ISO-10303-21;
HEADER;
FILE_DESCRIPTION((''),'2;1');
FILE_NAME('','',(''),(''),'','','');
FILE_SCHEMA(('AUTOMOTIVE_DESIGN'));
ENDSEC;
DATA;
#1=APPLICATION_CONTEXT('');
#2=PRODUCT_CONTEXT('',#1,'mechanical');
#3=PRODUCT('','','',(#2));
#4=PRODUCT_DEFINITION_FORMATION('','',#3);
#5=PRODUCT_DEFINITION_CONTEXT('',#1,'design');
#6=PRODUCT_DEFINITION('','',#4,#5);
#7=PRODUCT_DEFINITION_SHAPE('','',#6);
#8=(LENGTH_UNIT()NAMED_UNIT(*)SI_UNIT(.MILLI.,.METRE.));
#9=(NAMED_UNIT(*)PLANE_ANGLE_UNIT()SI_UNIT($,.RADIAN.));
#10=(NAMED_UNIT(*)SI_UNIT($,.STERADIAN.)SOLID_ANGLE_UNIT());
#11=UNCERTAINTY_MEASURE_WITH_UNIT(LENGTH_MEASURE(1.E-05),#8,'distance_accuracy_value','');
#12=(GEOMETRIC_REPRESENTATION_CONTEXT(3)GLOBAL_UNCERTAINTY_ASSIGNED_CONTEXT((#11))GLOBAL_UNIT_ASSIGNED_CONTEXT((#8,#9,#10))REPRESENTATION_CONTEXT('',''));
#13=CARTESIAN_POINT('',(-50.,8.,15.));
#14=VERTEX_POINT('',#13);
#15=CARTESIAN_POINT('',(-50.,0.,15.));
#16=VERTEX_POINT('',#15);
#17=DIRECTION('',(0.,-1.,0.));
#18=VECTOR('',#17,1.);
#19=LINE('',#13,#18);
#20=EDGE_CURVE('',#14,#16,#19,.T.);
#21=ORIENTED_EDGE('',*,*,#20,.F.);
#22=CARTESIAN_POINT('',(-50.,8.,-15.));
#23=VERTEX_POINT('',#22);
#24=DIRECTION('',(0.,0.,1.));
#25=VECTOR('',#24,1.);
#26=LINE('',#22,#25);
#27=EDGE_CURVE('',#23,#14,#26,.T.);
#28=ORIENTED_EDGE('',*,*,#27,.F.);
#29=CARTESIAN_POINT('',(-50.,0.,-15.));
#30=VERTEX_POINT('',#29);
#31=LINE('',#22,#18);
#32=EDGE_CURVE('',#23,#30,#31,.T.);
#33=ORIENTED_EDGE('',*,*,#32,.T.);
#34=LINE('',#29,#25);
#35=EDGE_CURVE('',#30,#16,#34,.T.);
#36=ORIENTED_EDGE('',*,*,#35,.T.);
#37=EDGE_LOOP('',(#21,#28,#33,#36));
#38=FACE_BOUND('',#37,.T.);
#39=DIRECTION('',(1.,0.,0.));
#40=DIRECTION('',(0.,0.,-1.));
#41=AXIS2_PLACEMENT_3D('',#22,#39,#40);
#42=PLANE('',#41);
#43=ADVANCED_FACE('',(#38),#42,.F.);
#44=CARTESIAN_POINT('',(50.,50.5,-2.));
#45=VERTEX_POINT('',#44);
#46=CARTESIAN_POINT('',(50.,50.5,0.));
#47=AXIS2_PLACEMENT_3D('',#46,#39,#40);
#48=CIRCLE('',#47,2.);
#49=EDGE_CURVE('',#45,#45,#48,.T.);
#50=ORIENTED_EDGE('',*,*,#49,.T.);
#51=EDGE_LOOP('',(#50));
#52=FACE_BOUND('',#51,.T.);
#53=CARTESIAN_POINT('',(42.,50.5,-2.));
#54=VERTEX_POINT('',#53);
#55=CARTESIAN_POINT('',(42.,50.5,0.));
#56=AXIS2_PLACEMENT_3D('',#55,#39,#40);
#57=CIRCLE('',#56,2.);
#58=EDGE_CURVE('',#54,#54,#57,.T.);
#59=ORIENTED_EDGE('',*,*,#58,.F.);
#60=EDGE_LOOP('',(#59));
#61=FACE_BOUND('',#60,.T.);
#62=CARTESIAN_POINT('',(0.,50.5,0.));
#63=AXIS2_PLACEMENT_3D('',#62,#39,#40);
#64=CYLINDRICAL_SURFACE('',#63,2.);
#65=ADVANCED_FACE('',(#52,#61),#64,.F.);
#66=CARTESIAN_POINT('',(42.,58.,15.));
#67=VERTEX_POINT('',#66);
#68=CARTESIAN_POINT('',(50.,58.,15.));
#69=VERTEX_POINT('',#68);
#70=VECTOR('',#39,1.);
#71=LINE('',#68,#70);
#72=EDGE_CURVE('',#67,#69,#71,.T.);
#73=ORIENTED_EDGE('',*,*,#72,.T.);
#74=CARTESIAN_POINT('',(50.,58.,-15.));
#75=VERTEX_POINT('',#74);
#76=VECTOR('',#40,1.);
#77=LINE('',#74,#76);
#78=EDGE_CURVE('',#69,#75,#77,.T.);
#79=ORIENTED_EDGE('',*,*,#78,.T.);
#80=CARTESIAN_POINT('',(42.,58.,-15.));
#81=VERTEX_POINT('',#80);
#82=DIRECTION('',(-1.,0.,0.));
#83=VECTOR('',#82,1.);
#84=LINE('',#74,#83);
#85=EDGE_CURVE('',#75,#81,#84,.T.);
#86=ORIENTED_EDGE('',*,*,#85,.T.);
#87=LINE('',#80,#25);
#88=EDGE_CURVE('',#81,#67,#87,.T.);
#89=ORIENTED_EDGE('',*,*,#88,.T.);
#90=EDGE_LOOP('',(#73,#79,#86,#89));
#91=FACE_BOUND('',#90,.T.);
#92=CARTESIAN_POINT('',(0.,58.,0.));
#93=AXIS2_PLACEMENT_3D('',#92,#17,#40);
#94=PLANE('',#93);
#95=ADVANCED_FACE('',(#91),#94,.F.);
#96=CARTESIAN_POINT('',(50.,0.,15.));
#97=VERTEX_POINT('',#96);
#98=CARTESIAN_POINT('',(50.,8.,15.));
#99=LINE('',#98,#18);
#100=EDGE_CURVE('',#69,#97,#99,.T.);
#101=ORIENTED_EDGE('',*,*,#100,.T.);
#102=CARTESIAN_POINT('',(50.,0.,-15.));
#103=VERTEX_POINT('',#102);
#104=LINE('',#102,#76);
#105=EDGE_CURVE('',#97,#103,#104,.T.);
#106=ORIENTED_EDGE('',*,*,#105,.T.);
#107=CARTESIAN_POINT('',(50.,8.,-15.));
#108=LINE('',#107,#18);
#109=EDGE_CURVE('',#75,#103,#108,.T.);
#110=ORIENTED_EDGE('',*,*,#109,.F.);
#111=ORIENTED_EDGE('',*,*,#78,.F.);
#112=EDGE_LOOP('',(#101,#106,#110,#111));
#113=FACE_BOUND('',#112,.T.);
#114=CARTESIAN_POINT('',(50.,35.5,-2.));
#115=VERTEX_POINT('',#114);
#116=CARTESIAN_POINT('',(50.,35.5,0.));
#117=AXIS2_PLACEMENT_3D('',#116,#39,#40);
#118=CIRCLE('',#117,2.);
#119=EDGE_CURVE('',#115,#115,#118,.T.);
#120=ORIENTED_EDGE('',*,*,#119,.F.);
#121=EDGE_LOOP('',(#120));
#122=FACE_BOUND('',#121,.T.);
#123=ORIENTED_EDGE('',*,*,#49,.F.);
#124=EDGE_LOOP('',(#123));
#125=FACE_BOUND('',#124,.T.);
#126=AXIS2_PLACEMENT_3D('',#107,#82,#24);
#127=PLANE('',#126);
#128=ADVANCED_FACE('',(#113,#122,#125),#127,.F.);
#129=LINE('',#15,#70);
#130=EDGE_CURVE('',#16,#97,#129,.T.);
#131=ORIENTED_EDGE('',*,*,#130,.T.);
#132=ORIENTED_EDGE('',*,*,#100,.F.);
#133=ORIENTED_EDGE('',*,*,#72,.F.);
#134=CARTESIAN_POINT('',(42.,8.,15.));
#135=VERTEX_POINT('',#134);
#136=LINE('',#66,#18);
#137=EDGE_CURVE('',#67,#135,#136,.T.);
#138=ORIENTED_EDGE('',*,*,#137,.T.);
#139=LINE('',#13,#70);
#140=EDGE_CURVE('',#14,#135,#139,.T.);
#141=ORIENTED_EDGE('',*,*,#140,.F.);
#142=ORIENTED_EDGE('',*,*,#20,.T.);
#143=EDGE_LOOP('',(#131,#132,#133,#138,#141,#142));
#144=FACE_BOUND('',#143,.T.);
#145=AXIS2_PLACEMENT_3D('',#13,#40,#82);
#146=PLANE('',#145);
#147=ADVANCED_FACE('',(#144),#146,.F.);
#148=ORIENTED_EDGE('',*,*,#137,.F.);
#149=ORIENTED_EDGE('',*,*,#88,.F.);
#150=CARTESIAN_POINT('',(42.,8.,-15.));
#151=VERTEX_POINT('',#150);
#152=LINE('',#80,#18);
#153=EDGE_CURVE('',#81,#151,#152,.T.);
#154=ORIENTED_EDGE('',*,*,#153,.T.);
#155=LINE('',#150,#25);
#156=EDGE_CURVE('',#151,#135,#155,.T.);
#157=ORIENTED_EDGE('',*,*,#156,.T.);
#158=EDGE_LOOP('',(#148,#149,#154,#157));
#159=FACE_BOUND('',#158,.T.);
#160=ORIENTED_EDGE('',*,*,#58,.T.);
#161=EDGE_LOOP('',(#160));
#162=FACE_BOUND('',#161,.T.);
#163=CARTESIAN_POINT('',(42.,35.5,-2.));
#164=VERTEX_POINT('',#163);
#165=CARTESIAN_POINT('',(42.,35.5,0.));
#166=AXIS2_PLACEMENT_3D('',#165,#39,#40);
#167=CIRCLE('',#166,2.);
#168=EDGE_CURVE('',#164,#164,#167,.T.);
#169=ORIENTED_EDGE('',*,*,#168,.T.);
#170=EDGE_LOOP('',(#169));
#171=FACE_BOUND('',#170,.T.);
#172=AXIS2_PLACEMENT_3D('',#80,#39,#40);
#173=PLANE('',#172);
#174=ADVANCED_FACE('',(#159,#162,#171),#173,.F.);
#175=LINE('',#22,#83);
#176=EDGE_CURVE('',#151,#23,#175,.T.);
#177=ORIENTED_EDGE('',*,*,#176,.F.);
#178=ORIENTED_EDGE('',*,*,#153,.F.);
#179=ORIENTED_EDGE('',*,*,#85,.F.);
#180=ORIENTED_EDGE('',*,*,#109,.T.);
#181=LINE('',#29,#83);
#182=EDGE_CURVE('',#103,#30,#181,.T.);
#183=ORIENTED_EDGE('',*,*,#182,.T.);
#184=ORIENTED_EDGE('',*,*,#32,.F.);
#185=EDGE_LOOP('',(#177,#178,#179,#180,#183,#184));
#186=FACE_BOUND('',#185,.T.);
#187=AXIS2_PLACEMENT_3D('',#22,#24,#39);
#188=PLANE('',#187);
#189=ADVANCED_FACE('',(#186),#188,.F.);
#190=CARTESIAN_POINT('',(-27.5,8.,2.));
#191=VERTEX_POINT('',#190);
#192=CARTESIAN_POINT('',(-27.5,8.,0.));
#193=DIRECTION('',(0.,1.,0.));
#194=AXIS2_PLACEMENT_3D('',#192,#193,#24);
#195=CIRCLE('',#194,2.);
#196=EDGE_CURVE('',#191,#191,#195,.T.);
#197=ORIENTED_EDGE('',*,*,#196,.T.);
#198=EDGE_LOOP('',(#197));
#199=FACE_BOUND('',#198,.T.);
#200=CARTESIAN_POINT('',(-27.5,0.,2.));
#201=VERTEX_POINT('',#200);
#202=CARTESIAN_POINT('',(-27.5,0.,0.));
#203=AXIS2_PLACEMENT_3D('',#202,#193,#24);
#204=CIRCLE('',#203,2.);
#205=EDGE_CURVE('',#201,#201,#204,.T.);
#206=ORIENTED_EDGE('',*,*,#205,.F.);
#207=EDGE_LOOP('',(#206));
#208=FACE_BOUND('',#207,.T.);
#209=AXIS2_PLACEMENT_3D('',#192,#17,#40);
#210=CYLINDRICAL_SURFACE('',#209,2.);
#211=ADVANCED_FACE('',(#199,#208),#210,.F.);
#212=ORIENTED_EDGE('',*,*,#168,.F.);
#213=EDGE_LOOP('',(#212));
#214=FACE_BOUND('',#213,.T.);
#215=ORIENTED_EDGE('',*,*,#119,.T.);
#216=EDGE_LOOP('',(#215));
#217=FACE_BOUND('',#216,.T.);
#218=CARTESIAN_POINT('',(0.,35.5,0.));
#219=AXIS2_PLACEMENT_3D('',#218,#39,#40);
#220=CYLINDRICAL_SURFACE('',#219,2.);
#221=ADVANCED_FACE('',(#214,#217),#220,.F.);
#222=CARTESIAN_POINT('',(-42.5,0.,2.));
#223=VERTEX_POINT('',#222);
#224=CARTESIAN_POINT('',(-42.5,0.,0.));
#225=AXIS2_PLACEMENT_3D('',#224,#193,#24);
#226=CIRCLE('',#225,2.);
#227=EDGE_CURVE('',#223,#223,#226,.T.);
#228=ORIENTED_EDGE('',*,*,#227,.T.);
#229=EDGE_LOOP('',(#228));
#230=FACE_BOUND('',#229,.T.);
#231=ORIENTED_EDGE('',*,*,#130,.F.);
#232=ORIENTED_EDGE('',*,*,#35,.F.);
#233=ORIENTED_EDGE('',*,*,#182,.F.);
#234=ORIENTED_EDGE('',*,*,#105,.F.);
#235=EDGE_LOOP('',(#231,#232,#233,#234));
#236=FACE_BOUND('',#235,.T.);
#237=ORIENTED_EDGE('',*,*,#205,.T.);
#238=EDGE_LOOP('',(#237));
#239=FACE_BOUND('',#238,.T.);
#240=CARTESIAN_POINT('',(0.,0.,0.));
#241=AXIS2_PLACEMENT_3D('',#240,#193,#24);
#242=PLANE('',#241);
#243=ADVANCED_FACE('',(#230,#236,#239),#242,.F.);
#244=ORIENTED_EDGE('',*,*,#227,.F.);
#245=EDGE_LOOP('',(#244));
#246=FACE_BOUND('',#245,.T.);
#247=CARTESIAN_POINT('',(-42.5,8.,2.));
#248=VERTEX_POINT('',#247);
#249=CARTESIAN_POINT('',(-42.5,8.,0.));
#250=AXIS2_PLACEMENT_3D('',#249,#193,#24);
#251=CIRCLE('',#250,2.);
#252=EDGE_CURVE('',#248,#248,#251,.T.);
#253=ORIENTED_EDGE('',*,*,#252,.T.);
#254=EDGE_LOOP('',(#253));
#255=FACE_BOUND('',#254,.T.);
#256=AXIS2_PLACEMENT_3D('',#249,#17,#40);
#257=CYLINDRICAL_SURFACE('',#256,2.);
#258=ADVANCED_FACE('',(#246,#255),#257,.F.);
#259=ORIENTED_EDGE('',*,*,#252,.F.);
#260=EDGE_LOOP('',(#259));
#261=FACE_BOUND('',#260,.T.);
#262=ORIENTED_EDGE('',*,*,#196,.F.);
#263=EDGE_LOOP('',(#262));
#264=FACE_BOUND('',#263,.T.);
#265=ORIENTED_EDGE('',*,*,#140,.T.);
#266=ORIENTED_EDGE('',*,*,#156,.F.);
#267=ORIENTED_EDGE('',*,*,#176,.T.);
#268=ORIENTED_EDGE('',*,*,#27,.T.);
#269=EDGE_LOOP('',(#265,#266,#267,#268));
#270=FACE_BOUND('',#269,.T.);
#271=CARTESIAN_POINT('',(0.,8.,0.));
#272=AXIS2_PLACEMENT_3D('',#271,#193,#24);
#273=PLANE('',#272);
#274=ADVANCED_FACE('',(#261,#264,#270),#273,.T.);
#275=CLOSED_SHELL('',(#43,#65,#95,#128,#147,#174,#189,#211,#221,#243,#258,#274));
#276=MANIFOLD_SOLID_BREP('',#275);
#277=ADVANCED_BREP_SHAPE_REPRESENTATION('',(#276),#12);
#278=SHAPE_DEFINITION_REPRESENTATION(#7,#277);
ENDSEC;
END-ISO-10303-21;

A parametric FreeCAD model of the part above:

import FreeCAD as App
import Part
import Sketcher

V = App.Vector

doc = App.newDocument("Part")
body = doc.addObject("PartDesign::Body", "Body")

# Sketch on XZ plane
sketch1 = doc.addObject("Sketcher::SketchObject", "Sketch")
body.addObject(sketch1)
sketch1.AttachmentSupport = (doc.XZ_Plane, [""])
sketch1.MapMode = "FlatFace"
sketch1.addGeometry([
    Part.LineSegment(V(-50, -15, 0), V(-50, 15, 0)),  # 0
    Part.LineSegment(V(-50, 15, 0), V(50, 15, 0)),  # 1
    Part.LineSegment(V(50, 15, 0), V(50, -15, 0)),  # 2
    Part.LineSegment(V(50, -15, 0), V(-50, -15, 0)),  # 3
    Part.Circle(V(-42.5, 0, 0), V(0, 0, 1), 2),  # 4
    Part.Circle(V(-27.5, 0, 0), V(0, 0, 1), 2),  # 5
], False)
sketch1.addConstraint([
    Sketcher.Constraint("Coincident", 0, 2, 1, 1),
    Sketcher.Constraint("Coincident", 1, 2, 2, 1),
    Sketcher.Constraint("Coincident", 2, 2, 3, 1),
    Sketcher.Constraint("Coincident", 3, 2, 0, 1),
    Sketcher.Constraint("Vertical", 0),
    Sketcher.Constraint("Horizontal", 1),
    Sketcher.Constraint("Vertical", 2),
    Sketcher.Constraint("Horizontal", 3),
    Sketcher.Constraint("Equal", 4, 5),
    Sketcher.Constraint("Symmetric", 0, 2, 2, 2, -1, 1),
    Sketcher.Constraint("PointOnObject", 4, 3, -1),
    Sketcher.Constraint("PointOnObject", 5, 3, -1),
    Sketcher.Constraint("Diameter", 4, 4.0),
    Sketcher.Constraint("DistanceX", 1, 1, 1, 2, 100.0),
    Sketcher.Constraint("DistanceY", 0, 1, 0, 2, 30.0),
    Sketcher.Constraint("DistanceX", 4, 3, 5, 3, 15.0),
    Sketcher.Constraint("DistanceX", 4, 3, -1, 1, 42.5),
])
pad1 = doc.addObject("PartDesign::Pad", "Pad")
body.addObject(pad1)
pad1.Profile = sketch1
pad1.Length = 8
pad1.Reversed = True

# Sketch on XZ plane
sketch2 = doc.addObject("Sketcher::SketchObject", "Sketch001")
body.addObject(sketch2)
sketch2.AttachmentSupport = (doc.XZ_Plane, [""])
sketch2.MapMode = "FlatFace"
sketch2.AttachmentOffset = App.Placement(V(0, 0, -8), App.Rotation())
sketch2.addGeometry([
    Part.LineSegment(V(42, -15, 0), V(42, 15, 0)),
    Part.LineSegment(V(42, 15, 0), V(50, 15, 0)),
    Part.LineSegment(V(50, 15, 0), V(50, -15, 0)),
    Part.LineSegment(V(50, -15, 0), V(42, -15, 0)),
], False)
sketch2.addConstraint([
    Sketcher.Constraint("Coincident", 0, 2, 1, 1),
    Sketcher.Constraint("Coincident", 1, 2, 2, 1),
    Sketcher.Constraint("Coincident", 2, 2, 3, 1),
    Sketcher.Constraint("Coincident", 3, 2, 0, 1),
    Sketcher.Constraint("Vertical", 0),
    Sketcher.Constraint("Horizontal", 1),
    Sketcher.Constraint("Vertical", 2),
    Sketcher.Constraint("Horizontal", 3),
    Sketcher.Constraint("DistanceX", 1, 1, 1, 2, 8.0),
    Sketcher.Constraint("DistanceY", 0, 1, 0, 2, 30.0),
    Sketcher.Constraint("DistanceX", -1, 1, 0, 2, 42.0),
    Sketcher.Constraint("DistanceY", -1, 1, 0, 2, 15.0),
])
pad2 = doc.addObject("PartDesign::Pad", "Pad001")
body.addObject(pad2)
pad2.Profile = sketch2
pad2.Length = 50
pad2.Reversed = True

# Sketch on YZ plane
sketch3 = doc.addObject("Sketcher::SketchObject", "Sketch002")
body.addObject(sketch3)
sketch3.AttachmentSupport = (doc.YZ_Plane, [""])
sketch3.MapMode = "FlatFace"
sketch3.AttachmentOffset = App.Placement(V(0, 0, 50), App.Rotation())
sketch3.addGeometry([
    Part.Circle(V(50.5, 0, 0), V(0, 0, 1), 2),
    Part.Circle(V(35.5, 0, 0), V(0, 0, 1), 2),
], False)
sketch3.addConstraint([
    Sketcher.Constraint("Equal", 0, 1),
    Sketcher.Constraint("PointOnObject", 0, 3, -1),
    Sketcher.Constraint("PointOnObject", 1, 3, -1),
    Sketcher.Constraint("Diameter", 0, 4.0),
    Sketcher.Constraint("DistanceX", 1, 3, 0, 3, 15.0),
    Sketcher.Constraint("DistanceX", -1, 1, 0, 3, 50.5),
])
pocket1 = doc.addObject("PartDesign::Pocket", "Pocket")
body.addObject(pocket1)
pocket1.Profile = sketch3
pocket1.Length = 50

doc.recompute()
